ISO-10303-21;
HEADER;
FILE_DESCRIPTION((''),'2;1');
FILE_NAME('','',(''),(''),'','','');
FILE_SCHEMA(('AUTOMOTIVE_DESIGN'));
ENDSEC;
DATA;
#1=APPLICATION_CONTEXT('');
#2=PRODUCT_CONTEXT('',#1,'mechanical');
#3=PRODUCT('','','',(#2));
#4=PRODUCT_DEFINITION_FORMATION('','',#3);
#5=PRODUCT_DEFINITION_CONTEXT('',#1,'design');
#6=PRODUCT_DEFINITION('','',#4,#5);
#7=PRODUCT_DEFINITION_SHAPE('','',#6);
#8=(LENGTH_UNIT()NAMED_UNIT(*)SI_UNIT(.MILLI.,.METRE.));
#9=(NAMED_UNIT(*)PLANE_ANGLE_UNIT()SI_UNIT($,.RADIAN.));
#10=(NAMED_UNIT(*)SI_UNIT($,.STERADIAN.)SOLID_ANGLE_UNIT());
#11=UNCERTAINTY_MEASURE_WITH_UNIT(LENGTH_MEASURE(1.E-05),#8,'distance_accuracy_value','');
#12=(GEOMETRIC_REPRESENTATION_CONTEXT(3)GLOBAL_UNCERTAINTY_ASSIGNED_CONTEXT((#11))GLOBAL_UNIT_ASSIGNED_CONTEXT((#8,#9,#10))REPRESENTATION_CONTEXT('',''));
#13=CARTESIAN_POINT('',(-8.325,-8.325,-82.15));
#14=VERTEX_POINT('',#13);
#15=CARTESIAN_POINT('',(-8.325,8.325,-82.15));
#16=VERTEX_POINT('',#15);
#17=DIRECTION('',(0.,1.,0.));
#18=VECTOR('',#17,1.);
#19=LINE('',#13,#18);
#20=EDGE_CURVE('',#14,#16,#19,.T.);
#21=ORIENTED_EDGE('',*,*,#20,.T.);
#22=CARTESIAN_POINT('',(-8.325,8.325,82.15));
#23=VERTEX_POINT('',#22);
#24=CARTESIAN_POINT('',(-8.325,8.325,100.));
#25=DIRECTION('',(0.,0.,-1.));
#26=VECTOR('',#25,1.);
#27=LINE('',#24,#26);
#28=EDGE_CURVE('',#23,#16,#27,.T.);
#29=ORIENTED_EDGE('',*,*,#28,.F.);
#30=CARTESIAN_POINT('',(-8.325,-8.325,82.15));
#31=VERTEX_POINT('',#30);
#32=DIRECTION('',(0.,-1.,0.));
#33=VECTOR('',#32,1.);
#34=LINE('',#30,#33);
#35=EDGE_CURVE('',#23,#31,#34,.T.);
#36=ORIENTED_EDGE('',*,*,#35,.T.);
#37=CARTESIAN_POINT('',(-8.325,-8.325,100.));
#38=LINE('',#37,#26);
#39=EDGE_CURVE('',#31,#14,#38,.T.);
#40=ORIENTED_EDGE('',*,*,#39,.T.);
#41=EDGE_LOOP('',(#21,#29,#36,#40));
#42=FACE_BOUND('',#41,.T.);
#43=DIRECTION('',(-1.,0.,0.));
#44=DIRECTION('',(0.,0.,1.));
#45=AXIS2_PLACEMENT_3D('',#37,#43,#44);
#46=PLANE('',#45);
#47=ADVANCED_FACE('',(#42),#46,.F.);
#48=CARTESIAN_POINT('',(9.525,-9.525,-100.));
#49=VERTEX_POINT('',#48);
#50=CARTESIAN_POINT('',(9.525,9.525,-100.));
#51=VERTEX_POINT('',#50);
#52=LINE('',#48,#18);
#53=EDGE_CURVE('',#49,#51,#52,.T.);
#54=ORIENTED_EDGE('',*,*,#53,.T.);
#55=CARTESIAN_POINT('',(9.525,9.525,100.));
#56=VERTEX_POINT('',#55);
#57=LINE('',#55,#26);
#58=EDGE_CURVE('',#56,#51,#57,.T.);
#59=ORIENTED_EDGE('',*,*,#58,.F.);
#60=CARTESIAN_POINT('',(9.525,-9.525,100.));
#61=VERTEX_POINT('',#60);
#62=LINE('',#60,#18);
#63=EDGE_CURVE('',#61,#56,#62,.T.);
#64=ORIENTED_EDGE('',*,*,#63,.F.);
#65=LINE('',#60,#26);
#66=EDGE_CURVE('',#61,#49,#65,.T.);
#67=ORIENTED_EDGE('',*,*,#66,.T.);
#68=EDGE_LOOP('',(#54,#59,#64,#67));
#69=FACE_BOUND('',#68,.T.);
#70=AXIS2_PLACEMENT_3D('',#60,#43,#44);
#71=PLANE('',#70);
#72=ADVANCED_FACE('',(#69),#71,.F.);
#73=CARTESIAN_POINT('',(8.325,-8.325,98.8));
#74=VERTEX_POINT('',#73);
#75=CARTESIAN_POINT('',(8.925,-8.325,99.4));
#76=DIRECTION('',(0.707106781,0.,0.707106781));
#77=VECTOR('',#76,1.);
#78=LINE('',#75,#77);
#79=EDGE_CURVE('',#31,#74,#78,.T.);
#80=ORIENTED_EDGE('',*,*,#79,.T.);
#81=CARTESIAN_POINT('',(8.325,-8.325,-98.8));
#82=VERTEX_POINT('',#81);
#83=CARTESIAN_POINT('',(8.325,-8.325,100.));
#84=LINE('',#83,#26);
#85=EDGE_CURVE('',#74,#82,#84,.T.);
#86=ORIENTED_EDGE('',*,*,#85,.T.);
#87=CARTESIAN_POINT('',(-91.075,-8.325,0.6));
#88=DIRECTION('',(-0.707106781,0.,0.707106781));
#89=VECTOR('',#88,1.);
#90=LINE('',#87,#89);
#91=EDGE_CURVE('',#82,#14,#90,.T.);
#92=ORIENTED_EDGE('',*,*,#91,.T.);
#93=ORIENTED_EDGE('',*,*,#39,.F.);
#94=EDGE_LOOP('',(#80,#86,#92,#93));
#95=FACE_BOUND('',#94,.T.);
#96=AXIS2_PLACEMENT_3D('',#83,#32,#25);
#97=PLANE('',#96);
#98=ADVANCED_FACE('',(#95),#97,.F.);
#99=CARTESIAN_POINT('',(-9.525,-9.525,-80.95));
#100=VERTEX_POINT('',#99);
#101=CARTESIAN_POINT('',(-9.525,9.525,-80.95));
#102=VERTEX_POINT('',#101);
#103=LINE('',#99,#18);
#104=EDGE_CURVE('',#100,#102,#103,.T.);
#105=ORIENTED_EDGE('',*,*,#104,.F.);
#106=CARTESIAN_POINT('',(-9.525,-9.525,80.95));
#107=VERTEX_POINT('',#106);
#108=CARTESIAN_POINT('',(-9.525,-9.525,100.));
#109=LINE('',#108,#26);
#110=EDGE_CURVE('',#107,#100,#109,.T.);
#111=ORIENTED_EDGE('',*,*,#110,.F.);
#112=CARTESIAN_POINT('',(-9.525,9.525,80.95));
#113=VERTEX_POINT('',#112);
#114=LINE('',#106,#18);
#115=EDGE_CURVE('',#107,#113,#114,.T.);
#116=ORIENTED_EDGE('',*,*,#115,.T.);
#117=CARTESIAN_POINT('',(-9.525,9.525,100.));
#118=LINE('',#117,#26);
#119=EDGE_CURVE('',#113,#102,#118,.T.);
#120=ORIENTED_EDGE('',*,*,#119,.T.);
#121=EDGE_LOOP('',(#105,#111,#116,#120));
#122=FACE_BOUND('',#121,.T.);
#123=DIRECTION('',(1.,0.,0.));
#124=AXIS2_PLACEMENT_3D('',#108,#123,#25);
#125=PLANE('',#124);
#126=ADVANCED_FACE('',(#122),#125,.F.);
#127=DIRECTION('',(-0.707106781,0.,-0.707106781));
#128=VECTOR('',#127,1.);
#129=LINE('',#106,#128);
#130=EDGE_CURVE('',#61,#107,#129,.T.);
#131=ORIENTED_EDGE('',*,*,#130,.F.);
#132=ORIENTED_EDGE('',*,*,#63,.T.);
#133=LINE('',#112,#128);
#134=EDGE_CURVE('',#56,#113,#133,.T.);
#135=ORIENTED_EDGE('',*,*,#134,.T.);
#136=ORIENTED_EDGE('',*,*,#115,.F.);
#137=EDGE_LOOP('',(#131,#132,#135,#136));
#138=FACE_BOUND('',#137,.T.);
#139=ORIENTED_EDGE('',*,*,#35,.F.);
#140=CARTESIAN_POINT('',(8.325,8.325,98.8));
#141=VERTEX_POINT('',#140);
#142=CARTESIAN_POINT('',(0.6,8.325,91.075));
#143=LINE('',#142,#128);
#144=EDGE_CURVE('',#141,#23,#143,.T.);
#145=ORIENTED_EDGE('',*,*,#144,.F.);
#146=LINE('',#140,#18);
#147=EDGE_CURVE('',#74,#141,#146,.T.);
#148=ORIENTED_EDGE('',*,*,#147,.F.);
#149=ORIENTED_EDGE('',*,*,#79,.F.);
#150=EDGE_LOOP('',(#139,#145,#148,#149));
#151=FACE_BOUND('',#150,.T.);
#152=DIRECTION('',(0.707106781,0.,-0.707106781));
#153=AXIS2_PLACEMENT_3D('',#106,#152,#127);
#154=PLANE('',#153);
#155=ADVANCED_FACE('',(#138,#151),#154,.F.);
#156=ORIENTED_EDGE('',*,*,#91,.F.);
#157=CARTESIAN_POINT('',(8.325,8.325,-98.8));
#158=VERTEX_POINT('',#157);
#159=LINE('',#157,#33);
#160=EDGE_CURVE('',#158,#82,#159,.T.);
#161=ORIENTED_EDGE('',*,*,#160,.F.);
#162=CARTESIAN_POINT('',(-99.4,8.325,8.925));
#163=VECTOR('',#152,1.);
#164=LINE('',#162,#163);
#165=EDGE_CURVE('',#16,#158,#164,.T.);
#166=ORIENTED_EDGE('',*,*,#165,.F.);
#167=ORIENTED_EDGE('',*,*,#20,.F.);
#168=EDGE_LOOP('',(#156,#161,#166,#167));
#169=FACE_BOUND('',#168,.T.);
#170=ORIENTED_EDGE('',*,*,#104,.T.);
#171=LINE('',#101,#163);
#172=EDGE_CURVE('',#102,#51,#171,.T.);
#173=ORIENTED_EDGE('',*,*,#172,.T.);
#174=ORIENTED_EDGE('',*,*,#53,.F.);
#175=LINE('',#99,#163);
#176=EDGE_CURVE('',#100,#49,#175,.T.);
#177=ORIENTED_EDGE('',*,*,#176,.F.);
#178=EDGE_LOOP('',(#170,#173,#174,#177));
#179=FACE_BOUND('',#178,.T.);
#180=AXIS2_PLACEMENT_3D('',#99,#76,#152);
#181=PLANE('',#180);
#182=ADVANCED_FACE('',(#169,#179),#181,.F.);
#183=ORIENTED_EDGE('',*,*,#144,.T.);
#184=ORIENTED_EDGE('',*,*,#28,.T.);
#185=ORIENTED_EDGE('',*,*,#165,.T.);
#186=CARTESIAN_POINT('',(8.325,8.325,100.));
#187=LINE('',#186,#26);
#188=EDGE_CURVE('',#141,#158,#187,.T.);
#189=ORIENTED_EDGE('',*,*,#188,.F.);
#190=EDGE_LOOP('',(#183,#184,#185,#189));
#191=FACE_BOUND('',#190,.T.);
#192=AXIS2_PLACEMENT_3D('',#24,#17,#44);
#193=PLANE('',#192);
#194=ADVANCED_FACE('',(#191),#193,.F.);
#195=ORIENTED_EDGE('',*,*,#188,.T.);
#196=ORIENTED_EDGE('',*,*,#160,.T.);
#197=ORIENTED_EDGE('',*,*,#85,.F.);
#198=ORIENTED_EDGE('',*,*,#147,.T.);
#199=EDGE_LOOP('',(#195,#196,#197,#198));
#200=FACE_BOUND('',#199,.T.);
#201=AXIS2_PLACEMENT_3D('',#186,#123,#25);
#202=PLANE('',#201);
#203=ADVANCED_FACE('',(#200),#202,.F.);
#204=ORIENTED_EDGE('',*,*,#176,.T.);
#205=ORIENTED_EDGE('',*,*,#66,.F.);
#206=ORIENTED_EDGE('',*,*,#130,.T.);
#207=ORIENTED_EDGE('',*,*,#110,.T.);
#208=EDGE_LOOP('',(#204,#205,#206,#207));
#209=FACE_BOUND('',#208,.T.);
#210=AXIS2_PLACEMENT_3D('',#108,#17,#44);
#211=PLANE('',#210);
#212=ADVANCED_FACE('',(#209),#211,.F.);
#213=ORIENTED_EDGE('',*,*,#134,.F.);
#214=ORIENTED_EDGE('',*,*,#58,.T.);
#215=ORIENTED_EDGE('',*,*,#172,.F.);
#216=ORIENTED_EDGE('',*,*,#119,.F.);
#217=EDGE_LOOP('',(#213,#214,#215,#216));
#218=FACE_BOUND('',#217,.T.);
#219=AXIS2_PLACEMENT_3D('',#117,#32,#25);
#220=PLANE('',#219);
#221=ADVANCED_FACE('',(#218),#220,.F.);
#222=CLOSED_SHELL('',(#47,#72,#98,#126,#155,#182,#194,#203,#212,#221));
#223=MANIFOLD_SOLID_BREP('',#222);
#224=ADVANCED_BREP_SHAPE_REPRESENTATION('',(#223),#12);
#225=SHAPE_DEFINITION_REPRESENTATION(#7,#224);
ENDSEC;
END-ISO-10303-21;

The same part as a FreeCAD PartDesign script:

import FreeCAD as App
import Part
import Sketcher

V = App.Vector
Q = App.Units.Quantity


def add_polygon(sketch, points):
    """Adds a closed chain of lines whose ends are joined by coincident constraints."""
    first, n = sketch.GeometryCount, len(points)
    for a, b in zip(points, points[1:] + points[:1]):
        sketch.addGeometry(Part.LineSegment(App.Vector(*a, 0), App.Vector(*b, 0)), False)
    for i in range(n):
        sketch.addConstraint(Sketcher.Constraint("Coincident", first + i, 2, first + (i + 1) % n, 1))

doc = App.newDocument("Part")
params = doc.addObject("Spreadsheet::Sheet", "Params")
for row, (alias, value) in enumerate([
    ("sketch1_width", "19.05 mm"),
    ("pad1_length", "200 mm"),
    ("sketch2_width", "16.65 mm"),
    ("sketch3_width", "19.05 mm"),
], start=1):
    params.set(f"A{row}", alias)
    params.set(f"B{row}", "=" + value)
    params.setAlias(f"B{row}", alias)

body = doc.addObject("PartDesign::Body", "Body")

# Sketch on XY plane
sketch1 = body.newObject("Sketcher::SketchObject", "Sketch")
sketch1.AttachmentSupport = (doc.getObject("XY_Plane"), [""])
sketch1.MapMode = "FlatFace"
add_polygon(sketch1, [(-9.525, 9.525), (-9.525, -9.525), (9.525, -9.525), (9.525, 9.525)])  # lines 0-3
sketch1.addConstraint([
    Sketcher.Constraint("Vertical", 0),
    Sketcher.Constraint("Horizontal", 1),
    Sketcher.Constraint("Vertical", 2),
    Sketcher.Constraint("Horizontal", 3),
    Sketcher.Constraint("Symmetric", 0, 2, 2, 2, -1, 1),
    Sketcher.Constraint("Equal", 3, 0),
    Sketcher.Constraint("DistanceX", 1, 1, 1, 2, Q("19.05 mm")),
])
sketch1.setExpression("Constraints[10]", "Params.sketch1_width")
pad1 = body.newObject("PartDesign::Pad", "Pad")
pad1.Profile = sketch1
pad1.setExpression("Length", "Params.pad1_length")
pad1.Midplane = True

# Sketch on XY plane
sketch2 = body.newObject("Sketcher::SketchObject", "Sketch001")
sketch2.AttachmentSupport = (doc.getObject("XY_Plane"), [""])
sketch2.MapMode = "FlatFace"
sketch2.AttachmentOffset = App.Placement(V(0, 0, -100), App.Rotation())
add_polygon(sketch2, [(8.325, 8.325), (8.325, -8.325), (-8.325, -8.325), (-8.325, 8.325)])  # lines 0-3
sketch2.addConstraint([
    Sketcher.Constraint("Vertical", 0),
    Sketcher.Constraint("Horizontal", 1),
    Sketcher.Constraint("Vertical", 2),
    Sketcher.Constraint("Horizontal", 3),
    Sketcher.Constraint("Symmetric", 0, 2, 2, 2, -1, 1),
    Sketcher.Constraint("Equal", 3, 0),
    Sketcher.Constraint("DistanceX", 1, 2, 1, 1, Q("16.65 mm")),
])
sketch2.setExpression("Constraints[10]", "Params.sketch2_width")
pocket1 = body.newObject("PartDesign::Pocket", "Pocket")
pocket1.Profile = sketch2
pocket1.Type = "ThroughAll"
pocket1.Reversed = True

# Sketch on XZ plane
sketch3 = body.newObject("Sketcher::SketchObject", "Sketch002")
sketch3.AttachmentSupport = (doc.getObject("XZ_Plane"), [""])
sketch3.MapMode = "FlatFace"
add_polygon(sketch3, [(9.525, -100), (-9.525, -100), (-9.525, -80.95)])  # lines 0-2
add_polygon(sketch3, [(9.525, 100), (-9.525, 80.95), (-9.525, 100)])  # lines 3-5
sketch3.addConstraint([
    Sketcher.Constraint("Horizontal", 0),
    Sketcher.Constraint("Vertical", 1),
    Sketcher.Constraint("Vertical", 4),
    Sketcher.Constraint("Horizontal", 5),
    Sketcher.Constraint("Symmetric", 2, 2, 4, 2, -1, 1),
    Sketcher.Constraint("Symmetric", 1, 2, 3, 2, -1),
    Sketcher.Constraint("Perpendicular", 2, 3),
    Sketcher.Constraint("Vertical", 2, 2, 5, 2),
    Sketcher.Constraint("DistanceY", 0, 2, -1, 1, Q("100 mm")),
    Sketcher.Constraint("DistanceX", 0, 2, 0, 1, Q("19.05 mm")),
])
sketch3.setExpression("Constraints[15]", "Params.sketch3_width")
pocket2 = body.newObject("PartDesign::Pocket", "Pocket001")
pocket2.Profile = sketch3
pocket2.Type = "ThroughAll"
pocket2.Midplane = True

doc.recompute()
